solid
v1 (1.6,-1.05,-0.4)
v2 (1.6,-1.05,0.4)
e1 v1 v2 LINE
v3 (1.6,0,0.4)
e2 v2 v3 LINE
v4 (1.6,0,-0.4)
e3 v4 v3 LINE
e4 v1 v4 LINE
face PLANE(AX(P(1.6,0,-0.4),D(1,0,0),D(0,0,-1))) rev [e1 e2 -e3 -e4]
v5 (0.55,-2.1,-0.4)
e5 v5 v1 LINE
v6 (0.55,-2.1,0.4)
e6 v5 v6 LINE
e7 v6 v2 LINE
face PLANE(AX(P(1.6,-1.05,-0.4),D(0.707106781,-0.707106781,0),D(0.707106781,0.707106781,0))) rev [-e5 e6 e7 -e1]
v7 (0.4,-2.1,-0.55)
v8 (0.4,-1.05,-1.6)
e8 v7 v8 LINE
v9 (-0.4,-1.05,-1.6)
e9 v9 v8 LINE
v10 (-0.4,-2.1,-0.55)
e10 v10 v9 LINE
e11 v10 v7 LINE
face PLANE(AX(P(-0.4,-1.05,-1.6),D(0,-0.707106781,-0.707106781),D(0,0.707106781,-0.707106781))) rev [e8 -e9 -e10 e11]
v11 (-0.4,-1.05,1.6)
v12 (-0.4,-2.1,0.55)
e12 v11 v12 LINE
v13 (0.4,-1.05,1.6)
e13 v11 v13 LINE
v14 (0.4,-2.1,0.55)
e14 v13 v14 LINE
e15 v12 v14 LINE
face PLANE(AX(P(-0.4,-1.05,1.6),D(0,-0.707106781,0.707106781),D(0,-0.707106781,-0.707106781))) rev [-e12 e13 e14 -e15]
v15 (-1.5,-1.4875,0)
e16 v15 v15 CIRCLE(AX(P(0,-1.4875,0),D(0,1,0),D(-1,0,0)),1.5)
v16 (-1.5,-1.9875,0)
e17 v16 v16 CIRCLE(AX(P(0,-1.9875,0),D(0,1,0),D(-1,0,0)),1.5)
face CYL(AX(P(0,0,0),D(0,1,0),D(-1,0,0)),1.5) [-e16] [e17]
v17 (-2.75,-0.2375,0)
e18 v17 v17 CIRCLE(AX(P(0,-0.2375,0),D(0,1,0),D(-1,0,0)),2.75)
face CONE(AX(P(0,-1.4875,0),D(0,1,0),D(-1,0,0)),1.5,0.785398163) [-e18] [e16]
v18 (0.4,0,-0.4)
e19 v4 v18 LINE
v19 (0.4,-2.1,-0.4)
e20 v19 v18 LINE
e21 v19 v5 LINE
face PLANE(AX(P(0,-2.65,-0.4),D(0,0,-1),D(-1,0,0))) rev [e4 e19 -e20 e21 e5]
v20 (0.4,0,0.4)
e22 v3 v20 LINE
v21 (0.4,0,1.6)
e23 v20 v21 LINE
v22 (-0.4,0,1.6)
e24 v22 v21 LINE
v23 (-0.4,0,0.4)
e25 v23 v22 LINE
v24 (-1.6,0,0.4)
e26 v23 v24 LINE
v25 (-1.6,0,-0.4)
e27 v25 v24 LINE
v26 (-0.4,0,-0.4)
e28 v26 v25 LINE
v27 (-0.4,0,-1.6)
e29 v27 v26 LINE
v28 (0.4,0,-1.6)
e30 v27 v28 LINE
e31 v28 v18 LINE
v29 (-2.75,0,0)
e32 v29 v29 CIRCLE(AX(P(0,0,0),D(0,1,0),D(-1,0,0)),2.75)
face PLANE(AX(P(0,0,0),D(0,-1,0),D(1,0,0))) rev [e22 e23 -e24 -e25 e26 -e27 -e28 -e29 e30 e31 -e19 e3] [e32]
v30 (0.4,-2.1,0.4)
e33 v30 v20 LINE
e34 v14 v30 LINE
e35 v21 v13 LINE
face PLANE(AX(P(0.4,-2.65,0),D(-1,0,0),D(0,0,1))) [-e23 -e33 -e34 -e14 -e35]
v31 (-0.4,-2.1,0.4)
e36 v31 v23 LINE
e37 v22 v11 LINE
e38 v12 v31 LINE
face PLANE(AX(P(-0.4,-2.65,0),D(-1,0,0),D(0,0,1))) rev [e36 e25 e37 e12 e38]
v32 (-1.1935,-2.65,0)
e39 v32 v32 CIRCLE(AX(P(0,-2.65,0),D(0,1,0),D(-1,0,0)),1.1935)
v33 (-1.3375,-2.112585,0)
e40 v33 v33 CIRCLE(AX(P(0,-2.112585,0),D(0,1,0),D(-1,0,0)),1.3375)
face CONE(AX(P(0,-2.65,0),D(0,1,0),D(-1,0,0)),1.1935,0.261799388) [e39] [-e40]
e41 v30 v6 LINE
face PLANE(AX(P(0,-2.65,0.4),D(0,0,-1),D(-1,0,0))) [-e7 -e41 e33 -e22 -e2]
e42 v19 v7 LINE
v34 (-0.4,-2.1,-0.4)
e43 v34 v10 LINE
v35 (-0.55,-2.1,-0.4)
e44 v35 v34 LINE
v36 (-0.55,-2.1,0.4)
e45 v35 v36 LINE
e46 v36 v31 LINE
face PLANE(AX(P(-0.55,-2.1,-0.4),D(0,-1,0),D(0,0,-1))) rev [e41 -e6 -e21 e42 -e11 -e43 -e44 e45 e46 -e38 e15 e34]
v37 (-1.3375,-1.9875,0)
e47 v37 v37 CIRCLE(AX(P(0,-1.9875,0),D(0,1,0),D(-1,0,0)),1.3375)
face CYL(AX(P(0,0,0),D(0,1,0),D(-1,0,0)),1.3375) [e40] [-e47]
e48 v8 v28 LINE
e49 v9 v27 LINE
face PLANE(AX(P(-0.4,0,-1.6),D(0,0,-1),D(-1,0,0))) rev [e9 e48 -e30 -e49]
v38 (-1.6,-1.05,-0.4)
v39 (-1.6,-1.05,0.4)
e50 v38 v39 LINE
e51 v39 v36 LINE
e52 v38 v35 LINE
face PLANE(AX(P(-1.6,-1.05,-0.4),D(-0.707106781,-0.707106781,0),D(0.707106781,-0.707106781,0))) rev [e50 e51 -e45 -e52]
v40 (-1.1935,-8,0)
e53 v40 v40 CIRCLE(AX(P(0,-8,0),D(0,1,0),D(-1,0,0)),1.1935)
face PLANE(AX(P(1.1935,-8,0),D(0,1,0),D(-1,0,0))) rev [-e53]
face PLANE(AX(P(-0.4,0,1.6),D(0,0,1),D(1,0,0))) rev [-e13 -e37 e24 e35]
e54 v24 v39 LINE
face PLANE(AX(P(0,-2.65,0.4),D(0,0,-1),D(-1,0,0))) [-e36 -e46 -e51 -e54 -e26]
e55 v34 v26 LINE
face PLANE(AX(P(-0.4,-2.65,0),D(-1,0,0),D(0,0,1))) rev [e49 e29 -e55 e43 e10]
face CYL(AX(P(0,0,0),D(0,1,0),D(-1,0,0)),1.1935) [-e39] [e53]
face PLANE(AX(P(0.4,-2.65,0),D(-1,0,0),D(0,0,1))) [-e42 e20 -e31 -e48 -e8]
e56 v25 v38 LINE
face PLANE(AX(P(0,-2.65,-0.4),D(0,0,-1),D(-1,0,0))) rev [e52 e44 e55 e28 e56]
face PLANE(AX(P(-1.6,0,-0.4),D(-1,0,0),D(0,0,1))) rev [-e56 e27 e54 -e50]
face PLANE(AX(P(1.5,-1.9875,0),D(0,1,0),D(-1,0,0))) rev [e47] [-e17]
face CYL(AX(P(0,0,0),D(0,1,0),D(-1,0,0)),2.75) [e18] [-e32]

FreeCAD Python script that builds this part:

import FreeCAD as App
import Part
import Sketcher

V = App.Vector
Q = App.Units.Quantity

doc = App.newDocument("Part")
body = doc.addObject("PartDesign::Body", "Body")

# Sketch on XY plane
sketch1 = body.newObject("Sketcher::SketchObject", "Sketch")
sketch1.AttachmentSupport = (doc.getObject("XY_Plane"), [""])
sketch1.MapMode = "FlatFace"
sketch1.addGeometry([
    Part.LineSegment(V(2.75, 0, 0), V(0, 0, 0)),  # 0
    Part.LineSegment(V(0, 0, 0), V(0, -8, 0)),  # 1
    Part.LineSegment(V(0, -8, 0), V(1.19, -8, 0)),  # 2
    Part.LineSegment(V(1.19, -8, 0), V(1.19, -2.65, 0)),  # 3
    Part.LineSegment(V(1.19, -2.65, 0), V(1.34, -2.11, 0)),  # 4
    Part.LineSegment(V(1.34, -2.11, 0), V(1.34, -1.99, 0)),  # 5
    Part.LineSegment(V(1.34, -1.99, 0), V(1.5, -1.99, 0)),  # 6
    Part.LineSegment(V(1.5, -1.99, 0), V(1.5, -1.49, 0)),  # 7
    Part.LineSegment(V(1.5, -1.49, 0), V(2.75, -0.24, 0)),  # 8
    Part.LineSegment(V(2.75, -0.24, 0), V(2.75, 0, 0)),  # 9
], False)
sketch1.addConstraint([
    Sketcher.Constraint("Coincident", 0, 2, 1, 1),
    Sketcher.Constraint("Coincident", 1, 2, 2, 1),
    Sketcher.Constraint("Coincident", 2, 2, 3, 1),
    Sketcher.Constraint("Coincident", 3, 2, 4, 1),
    Sketcher.Constraint("Coincident", 4, 2, 5, 1),
    Sketcher.Constraint("Coincident", 5, 2, 6, 1),
    Sketcher.Constraint("Coincident", 6, 2, 7, 1),
    Sketcher.Constraint("Coincident", 7, 2, 8, 1),
    Sketcher.Constraint("Coincident", 8, 2, 9, 1),
    Sketcher.Constraint("Coincident", 9, 2, 0, 1),
    Sketcher.Constraint("Horizontal", 0),
    Sketcher.Constraint("Vertical", 1),
    Sketcher.Constraint("Horizontal", 2),
    Sketcher.Constraint("Vertical", 3),
    Sketcher.Constraint("Vertical", 5),
    Sketcher.Constraint("Horizontal", 6),
    Sketcher.Constraint("Vertical", 7),
    Sketcher.Constraint("Vertical", 9),
    Sketcher.Constraint("Coincident", 0, 2, -1, 1),
    Sketcher.Constraint("DistanceY", 1, 2, 1, 1, Q("8 mm")),
    Sketcher.Constraint("Angle", 4, Q("75 deg")),
    Sketcher.Constraint("Angle", 8, Q("45 deg")),
    Sketcher.Constraint("DistanceY", 7, 1, 7, 2, Q("0.5 mm")),
    Sketcher.Constraint("DistanceX", 0, 2, 0, 1, Q("2.75 mm")),
    Sketcher.Constraint("DistanceY", 3, 1, 3, 2, Q("5.35 mm")),
    Sketcher.Constraint("DistanceX", -1, 1, 6, 2, Q("1.5 mm")),
    Sketcher.Constraint("DistanceX", 2, 1, 2, 2, Q("1.1935 mm")),
    Sketcher.Constraint("DistanceX", 6, 1, 6, 2, Q("0.1625 mm")),
    Sketcher.Constraint("DistanceY", 9, 1, 9, 2, Q("0.2375 mm")),
])
revolution = body.newObject("PartDesign::Revolution", "Revolution")
revolution.Profile = sketch1
revolution.ReferenceAxis = (sketch1, ["V_Axis"])
revolution.Angle = 360

# Sketch on XY plane
sketch2 = body.newObject("Sketcher::SketchObject", "Sketch001")
sketch2.AttachmentSupport = (doc.getObject("XY_Plane"), [""])
sketch2.MapMode = "FlatFace"
sketch2.addGeometry([
    Part.LineSegment(V(-0.6, -2.1, 0), V(0.6, -2.1, 0)),  # 0
    Part.LineSegment(V(0.6, -2.1, 0), V(1.6, -1.1, 0)),  # 1
    Part.LineSegment(V(1.6, -1.1, 0), V(1.6, 0, 0)),  # 2
    Part.LineSegment(V(1.6, 0, 0), V(-1.6, 0, 0)),  # 3
    Part.LineSegment(V(-1.6, 0, 0), V(-1.6, -1.1, 0)),  # 4
    Part.LineSegment(V(-1.6, -1.1, 0), V(-0.6, -2.1, 0)),  # 5
], False)
sketch2.addConstraint([
    Sketcher.Constraint("Coincident", 0, 2, 1, 1),
    Sketcher.Constraint("Coincident", 1, 2, 2, 1),
    Sketcher.Constraint("Coincident", 2, 2, 3, 1),
    Sketcher.Constraint("Coincident", 3, 2, 4, 1),
    Sketcher.Constraint("Coincident", 4, 2, 5, 1),
    Sketcher.Constraint("Coincident", 5, 2, 0, 1),
    Sketcher.Constraint("Horizontal", 0),
    Sketcher.Constraint("Vertical", 2),
    Sketcher.Constraint("Horizontal", 3),
    Sketcher.Constraint("Vertical", 4),
    Sketcher.Constraint("Symmetric", 2, 2, 3, 2, -1, 1),
    Sketcher.Constraint("Perpendicular", 1, 5),
    Sketcher.Constraint("Horizontal", 1, 2, 4, 2),
    Sketcher.Constraint("Equal", 1, 5),
    Sketcher.Constraint("DistanceX", 0, 1, 0, 2, Q("1.1 mm")),
    Sketcher.Constraint("DistanceX", 3, 2, 3, 1, Q("3.2 mm")),
    Sketcher.Constraint("DistanceY", 2, 1, 2, 2, Q("1.05 mm")),
])
pocket1 = body.newObject("PartDesign::Pocket", "Pocket")
pocket1.Profile = sketch2
pocket1.Type = "TwoLengths"
pocket1.Length = 0.4
pocket1.Length2 = 0.4
pocket1.Reversed = True

# Sketch on YZ plane
sketch3 = body.newObject("Sketcher::SketchObject", "Sketch002")
sketch3.AttachmentSupport = (doc.getObject("YZ_Plane"), [""])
sketch3.MapMode = "FlatFace"
sketch3.addGeometry([
    Part.LineSegment(V(-2.1, 0.6, 0), V(-2.1, -0.6, 0)),  # 0
    Part.LineSegment(V(-2.1, -0.6, 0), V(-1.1, -1.6, 0)),  # 1
    Part.LineSegment(V(-1.1, -1.6, 0), V(0, -1.6, 0)),  # 2
    Part.LineSegment(V(0, -1.6, 0), V(0, 1.6, 0)),  # 3
    Part.LineSegment(V(0, 1.6, 0), V(-1.1, 1.6, 0)),  # 4
    Part.LineSegment(V(-1.1, 1.6, 0), V(-2.1, 0.6, 0)),  # 5
], False)
sketch3.addConstraint([
    Sketcher.Constraint("Coincident", 0, 2, 1, 1),
    Sketcher.Constraint("Coincident", 1, 2, 2, 1),
    Sketcher.Constraint("Coincident", 2, 2, 3, 1),
    Sketcher.Constraint("Coincident", 3, 2, 4, 1),
    Sketcher.Constraint("Coincident", 4, 2, 5, 1),
    Sketcher.Constraint("Coincident", 5, 2, 0, 1),
    Sketcher.Constraint("Vertical", 0),
    Sketcher.Constraint("Horizontal", 2),
    Sketcher.Constraint("Vertical", 3),
    Sketcher.Constraint("Horizontal", 4),
    Sketcher.Constraint("Symmetric", 2, 2, 3, 2, -1, 1),
    Sketcher.Constraint("Perpendicular", 1, 5),
    Sketcher.Constraint("Vertical", 1, 2, 4, 2),
    Sketcher.Constraint("Equal", 1, 5),
    Sketcher.Constraint("DistanceY", 0, 2, 0, 1, Q("1.1 mm")),
    Sketcher.Constraint("DistanceY", 3, 1, 3, 2, Q("3.2 mm")),
    Sketcher.Constraint("DistanceX", 2, 1, 2, 2, Q("1.05 mm")),
])
pocket2 = body.newObject("PartDesign::Pocket", "Pocket001")
pocket2.Profile = sketch3
pocket2.Type = "TwoLengths"
pocket2.Length = 0.4
pocket2.Length2 = 0.4
pocket2.Reversed = True

doc.recompute()
